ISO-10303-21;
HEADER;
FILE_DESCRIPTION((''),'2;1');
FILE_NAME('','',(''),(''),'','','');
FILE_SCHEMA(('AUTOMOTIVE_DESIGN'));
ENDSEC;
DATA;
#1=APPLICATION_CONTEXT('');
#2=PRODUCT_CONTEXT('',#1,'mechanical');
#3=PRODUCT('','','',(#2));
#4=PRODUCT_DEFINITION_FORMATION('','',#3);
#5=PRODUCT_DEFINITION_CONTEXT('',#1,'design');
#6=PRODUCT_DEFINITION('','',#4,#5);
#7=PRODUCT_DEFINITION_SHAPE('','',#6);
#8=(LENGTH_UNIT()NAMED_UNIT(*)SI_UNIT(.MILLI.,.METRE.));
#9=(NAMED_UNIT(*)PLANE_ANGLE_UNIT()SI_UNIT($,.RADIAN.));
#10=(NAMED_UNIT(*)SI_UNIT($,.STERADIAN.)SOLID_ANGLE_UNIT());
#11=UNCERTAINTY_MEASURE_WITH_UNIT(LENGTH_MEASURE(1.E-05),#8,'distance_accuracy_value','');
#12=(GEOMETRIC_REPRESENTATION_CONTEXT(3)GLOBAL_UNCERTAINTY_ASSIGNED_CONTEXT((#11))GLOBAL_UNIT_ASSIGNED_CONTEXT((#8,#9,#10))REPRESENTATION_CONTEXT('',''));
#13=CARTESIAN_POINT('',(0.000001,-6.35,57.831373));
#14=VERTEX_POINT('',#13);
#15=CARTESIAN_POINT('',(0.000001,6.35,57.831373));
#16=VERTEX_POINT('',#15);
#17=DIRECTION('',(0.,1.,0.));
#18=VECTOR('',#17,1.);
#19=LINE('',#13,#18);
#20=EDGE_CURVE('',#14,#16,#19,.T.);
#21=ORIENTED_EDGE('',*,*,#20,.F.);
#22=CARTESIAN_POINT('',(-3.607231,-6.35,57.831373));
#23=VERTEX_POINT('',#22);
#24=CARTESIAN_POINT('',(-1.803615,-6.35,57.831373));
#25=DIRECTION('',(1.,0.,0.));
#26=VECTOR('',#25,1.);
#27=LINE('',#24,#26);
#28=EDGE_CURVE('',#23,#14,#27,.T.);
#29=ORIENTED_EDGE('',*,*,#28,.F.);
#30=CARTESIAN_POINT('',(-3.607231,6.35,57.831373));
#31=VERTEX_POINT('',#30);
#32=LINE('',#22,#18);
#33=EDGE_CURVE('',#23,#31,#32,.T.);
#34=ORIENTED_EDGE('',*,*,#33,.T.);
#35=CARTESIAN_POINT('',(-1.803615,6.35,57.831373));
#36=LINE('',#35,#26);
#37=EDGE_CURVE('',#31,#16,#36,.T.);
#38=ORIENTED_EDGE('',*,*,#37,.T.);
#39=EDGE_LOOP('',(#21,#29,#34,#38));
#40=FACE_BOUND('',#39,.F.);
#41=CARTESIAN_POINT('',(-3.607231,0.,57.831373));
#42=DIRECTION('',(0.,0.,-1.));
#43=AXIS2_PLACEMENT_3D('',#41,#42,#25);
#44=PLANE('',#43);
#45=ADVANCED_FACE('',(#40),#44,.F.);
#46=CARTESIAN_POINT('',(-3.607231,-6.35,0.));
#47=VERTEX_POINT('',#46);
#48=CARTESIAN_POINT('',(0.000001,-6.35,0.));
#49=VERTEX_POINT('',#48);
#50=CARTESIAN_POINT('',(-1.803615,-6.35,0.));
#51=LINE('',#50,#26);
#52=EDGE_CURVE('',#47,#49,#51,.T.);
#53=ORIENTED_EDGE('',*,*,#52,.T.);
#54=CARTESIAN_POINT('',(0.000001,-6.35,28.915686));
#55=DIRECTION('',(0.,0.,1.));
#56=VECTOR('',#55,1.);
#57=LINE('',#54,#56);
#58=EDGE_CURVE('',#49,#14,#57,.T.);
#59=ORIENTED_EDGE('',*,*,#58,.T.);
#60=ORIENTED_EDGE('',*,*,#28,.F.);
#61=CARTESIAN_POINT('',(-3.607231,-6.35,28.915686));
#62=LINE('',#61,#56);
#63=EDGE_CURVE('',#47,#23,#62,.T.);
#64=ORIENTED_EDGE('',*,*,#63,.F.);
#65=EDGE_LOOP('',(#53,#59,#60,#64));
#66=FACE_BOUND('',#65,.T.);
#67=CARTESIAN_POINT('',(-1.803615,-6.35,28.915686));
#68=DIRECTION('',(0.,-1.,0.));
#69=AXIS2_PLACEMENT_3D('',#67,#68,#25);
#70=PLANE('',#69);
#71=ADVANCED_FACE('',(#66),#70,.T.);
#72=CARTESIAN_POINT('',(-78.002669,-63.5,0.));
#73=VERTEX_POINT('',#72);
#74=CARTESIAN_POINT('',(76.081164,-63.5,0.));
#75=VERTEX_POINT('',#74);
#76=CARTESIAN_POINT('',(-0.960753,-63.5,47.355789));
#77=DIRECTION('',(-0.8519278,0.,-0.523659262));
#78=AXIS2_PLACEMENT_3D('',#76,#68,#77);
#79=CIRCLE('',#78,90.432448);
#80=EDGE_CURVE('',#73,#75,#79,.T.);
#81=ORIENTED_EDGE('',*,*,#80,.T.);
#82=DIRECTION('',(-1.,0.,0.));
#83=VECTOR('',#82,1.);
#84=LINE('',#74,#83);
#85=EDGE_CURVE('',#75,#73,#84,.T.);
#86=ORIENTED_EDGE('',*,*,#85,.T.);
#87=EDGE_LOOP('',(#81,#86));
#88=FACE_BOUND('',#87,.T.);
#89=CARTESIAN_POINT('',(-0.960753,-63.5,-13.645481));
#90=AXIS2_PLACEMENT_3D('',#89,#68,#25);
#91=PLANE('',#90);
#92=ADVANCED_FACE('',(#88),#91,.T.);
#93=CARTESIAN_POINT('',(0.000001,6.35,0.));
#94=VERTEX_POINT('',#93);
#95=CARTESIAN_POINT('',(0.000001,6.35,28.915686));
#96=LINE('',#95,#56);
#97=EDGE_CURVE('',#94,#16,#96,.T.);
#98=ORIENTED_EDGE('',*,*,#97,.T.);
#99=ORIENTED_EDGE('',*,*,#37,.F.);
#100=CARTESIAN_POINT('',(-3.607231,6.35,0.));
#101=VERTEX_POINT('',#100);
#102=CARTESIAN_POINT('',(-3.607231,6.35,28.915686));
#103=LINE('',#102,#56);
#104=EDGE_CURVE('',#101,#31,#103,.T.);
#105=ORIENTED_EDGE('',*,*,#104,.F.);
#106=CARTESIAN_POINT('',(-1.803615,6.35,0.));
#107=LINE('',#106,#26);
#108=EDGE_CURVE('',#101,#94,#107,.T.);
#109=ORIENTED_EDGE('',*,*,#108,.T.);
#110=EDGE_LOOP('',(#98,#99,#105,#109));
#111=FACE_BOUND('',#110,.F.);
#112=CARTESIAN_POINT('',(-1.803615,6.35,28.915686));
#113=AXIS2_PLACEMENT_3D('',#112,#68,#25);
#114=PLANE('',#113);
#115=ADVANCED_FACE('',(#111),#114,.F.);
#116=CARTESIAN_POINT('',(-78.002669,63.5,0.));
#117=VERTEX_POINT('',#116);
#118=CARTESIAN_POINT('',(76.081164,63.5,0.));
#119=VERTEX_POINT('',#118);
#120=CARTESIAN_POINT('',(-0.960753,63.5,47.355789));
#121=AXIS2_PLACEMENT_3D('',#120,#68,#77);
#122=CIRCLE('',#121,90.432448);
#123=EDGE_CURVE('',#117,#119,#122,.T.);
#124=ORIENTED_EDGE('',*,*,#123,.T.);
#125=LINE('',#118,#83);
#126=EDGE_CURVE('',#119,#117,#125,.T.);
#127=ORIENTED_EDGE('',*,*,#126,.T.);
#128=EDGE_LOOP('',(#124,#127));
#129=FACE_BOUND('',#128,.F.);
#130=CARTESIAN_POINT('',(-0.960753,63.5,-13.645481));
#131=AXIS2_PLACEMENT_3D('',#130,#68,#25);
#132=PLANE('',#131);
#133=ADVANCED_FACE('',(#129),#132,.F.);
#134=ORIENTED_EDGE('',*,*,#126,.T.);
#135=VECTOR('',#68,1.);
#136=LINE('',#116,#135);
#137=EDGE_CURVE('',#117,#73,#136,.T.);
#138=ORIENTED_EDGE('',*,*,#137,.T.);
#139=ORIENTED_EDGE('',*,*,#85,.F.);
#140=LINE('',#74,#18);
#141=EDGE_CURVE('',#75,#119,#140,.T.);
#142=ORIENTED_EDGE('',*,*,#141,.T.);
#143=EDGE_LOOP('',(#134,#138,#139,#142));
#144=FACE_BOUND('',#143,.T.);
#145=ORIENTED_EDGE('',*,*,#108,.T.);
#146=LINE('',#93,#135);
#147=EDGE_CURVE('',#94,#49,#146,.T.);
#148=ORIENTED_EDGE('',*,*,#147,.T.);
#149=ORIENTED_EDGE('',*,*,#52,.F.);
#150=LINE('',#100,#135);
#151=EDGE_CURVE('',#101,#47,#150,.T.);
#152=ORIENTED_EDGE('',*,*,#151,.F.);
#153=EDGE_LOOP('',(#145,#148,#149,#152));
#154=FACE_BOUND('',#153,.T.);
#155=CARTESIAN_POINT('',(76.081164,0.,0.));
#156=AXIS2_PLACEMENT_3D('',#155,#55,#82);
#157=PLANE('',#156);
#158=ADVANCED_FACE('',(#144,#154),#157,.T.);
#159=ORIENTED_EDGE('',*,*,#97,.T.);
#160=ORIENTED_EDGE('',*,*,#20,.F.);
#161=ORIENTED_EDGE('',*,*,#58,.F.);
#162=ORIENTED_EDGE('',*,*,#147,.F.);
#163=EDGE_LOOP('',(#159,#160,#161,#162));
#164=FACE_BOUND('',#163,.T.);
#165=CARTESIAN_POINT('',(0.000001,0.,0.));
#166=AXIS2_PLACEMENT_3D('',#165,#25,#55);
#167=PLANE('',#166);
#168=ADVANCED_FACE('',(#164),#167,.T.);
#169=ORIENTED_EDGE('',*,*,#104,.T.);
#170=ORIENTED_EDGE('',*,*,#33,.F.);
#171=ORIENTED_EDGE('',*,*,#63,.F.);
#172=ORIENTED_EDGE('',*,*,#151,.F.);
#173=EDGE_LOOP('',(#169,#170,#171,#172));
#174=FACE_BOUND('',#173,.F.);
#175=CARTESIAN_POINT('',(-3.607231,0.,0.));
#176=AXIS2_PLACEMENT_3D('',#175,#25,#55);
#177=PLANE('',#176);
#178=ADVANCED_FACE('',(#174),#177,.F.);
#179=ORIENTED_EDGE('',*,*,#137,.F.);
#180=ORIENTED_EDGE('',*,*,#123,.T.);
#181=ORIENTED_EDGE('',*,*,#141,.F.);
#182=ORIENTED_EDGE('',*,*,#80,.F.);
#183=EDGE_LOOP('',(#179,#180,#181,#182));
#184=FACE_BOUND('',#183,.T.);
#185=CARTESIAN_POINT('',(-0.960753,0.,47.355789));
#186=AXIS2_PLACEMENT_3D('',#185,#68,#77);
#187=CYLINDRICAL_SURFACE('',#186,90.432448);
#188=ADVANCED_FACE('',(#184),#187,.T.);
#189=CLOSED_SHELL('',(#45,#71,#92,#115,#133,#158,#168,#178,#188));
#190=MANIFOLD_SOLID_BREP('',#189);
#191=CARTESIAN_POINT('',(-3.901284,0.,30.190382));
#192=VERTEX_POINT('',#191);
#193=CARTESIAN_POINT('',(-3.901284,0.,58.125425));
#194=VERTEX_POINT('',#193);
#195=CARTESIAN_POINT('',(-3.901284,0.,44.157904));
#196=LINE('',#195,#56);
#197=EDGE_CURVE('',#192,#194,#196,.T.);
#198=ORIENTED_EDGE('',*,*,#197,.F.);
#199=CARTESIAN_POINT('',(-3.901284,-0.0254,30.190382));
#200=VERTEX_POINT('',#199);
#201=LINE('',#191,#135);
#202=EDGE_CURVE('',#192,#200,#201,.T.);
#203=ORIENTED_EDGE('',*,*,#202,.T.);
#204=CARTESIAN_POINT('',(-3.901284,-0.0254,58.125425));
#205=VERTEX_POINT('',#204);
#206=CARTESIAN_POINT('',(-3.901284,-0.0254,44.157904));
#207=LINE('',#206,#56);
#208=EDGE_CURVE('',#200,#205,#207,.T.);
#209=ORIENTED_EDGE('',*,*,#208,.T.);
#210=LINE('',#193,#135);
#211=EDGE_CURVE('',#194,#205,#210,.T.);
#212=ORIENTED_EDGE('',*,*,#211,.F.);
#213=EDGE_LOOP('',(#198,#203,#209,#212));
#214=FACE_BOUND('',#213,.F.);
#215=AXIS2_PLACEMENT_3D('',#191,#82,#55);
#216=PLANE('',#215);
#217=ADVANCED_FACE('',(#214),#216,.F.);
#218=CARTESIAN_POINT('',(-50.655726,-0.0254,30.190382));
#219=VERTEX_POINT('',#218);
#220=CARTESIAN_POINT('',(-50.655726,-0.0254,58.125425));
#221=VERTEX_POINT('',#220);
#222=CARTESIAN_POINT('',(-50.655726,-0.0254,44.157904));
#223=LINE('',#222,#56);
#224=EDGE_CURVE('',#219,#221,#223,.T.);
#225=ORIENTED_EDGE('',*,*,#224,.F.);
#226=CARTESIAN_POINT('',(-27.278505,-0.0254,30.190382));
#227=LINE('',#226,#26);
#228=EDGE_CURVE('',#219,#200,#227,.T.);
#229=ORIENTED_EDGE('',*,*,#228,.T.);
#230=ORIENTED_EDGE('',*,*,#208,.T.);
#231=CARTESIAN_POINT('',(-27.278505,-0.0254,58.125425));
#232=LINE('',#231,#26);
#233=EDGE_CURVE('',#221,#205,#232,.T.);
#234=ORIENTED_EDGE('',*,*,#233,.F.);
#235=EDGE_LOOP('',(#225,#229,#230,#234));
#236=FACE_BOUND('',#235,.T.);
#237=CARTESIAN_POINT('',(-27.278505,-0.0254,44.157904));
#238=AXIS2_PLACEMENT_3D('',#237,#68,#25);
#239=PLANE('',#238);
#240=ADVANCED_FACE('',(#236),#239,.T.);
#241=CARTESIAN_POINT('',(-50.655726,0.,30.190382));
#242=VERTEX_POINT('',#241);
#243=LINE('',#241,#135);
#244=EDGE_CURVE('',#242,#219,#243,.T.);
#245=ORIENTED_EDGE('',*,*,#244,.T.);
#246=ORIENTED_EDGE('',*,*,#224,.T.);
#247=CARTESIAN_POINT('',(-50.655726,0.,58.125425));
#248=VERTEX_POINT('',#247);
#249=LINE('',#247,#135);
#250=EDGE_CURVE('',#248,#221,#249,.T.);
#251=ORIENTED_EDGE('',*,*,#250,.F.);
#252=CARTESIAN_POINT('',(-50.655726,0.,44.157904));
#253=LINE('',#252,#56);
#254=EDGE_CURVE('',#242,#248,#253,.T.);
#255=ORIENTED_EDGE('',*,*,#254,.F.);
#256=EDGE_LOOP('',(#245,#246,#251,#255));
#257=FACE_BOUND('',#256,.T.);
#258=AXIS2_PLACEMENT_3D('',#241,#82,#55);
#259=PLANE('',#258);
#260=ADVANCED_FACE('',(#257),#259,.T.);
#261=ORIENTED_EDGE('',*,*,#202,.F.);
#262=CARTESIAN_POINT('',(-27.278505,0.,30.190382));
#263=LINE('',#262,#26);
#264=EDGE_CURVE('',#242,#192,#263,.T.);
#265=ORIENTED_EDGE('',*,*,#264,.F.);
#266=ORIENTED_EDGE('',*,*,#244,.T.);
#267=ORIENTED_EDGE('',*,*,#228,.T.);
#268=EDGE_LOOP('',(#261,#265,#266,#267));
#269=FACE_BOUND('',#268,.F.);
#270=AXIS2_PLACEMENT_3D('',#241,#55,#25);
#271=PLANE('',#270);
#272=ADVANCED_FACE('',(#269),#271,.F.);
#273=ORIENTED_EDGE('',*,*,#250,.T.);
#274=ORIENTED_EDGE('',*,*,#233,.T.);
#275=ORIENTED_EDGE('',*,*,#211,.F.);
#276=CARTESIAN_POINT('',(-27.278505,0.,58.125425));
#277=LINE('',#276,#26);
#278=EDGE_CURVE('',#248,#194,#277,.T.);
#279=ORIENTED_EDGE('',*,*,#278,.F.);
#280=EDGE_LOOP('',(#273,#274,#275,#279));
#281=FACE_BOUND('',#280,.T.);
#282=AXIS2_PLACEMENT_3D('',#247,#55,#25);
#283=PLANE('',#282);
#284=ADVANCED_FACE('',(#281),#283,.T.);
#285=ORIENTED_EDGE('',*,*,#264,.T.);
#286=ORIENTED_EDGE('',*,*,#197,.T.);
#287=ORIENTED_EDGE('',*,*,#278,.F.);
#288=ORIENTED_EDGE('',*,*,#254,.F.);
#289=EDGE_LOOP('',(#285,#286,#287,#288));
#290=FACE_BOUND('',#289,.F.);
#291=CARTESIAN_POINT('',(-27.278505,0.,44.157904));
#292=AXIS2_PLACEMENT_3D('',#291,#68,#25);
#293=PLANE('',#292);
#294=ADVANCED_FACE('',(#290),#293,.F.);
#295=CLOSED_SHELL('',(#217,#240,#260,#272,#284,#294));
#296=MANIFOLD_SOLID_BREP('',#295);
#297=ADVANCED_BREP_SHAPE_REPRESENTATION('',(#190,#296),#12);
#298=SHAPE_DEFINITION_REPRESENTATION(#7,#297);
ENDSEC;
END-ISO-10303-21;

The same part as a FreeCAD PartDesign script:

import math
import FreeCAD as App
import Part
import Sketcher
from FreeCAD import Vector
Q = App.Units.Quantity

doc = App.newDocument("Part")
body = doc.addObject("PartDesign::Body", "Body")

sketch1 = body.newObject("Sketcher::SketchObject", "Sketch")
sketch1.AttachmentSupport = (doc.getObject("XZ_Plane"), [""])
sketch1.MapMode = "FlatFace"
sketch1.addGeometry(Part.LineSegment(Vector(76, 0, 0), Vector(-78, 0, 0)), False)
sketch1.addGeometry(Part.ArcOfCircle(Part.Circle(Vector(-1, 47, 0), Vector(0, 0, 1), 90), math.radians(-148), math.radians(-32)), False)
sketch1.addConstraint(Sketcher.Constraint("Coincident", 0, 1, 1, 2))
sketch1.addConstraint(Sketcher.Constraint("Coincident", 1, 1, 0, 2))
sketch1.addConstraint(Sketcher.Constraint("Horizontal", 0))
sketch1.addConstraint(Sketcher.Constraint("PointOnObject", 0, 1, -1))
sketch1.addConstraint(Sketcher.Constraint("Radius", 1, Q("90.432448 mm")))
sketch1.addConstraint(Sketcher.Constraint("DistanceX", 0, 2, 0, 1, Q("154.083833 mm")))
sketch1.addConstraint(Sketcher.Constraint("DistanceX", 1, 1, -1, 1, Q("78.002669 mm")))
pad1 = body.newObject("PartDesign::Pad", "Pad")
pad1.Profile = sketch1
pad1.Length = Q("5 in")
pad1.Midplane = True

sketch2 = body.newObject("Sketcher::SketchObject", "Sketch001")
sketch2.AttachmentSupport = (doc.getObject("XZ_Plane"), [""])
sketch2.MapMode = "FlatFace"
sketch2.addGeometry(Part.LineSegment(Vector(-3.6, 57.8, 0), Vector(-3.6, 0, 0)), False)
sketch2.addGeometry(Part.LineSegment(Vector(-3.6, 0, 0), Vector(0, 0, 0)), False)
sketch2.addGeometry(Part.LineSegment(Vector(0, 0, 0), Vector(0, 57.8, 0)), False)
sketch2.addGeometry(Part.LineSegment(Vector(0, 57.8, 0), Vector(-3.6, 57.8, 0)), False)
sketch2.addConstraint(Sketcher.Constraint("Coincident", 0, 2, 1, 1))
sketch2.addConstraint(Sketcher.Constraint("Coincident", 1, 2, 2, 1))
sketch2.addConstraint(Sketcher.Constraint("Coincident", 2, 2, 3, 1))
sketch2.addConstraint(Sketcher.Constraint("Coincident", 3, 2, 0, 1))
sketch2.addConstraint(Sketcher.Constraint("Vertical", 0))
sketch2.addConstraint(Sketcher.Constraint("Horizontal", 1))
sketch2.addConstraint(Sketcher.Constraint("Vertical", 2))
sketch2.addConstraint(Sketcher.Constraint("Horizontal", 3))
sketch2.addConstraint(Sketcher.Constraint("Coincident", 1, 2, -1, 1))
sketch2.addConstraint(Sketcher.Constraint("DistanceX", 1, 1, 1, 2, Q("3.607231 mm")))
sketch2.addConstraint(Sketcher.Constraint("DistanceY", 0, 2, 0, 1, Q("57.831373 mm")))
pad2 = body.newObject("PartDesign::Pad", "Pad001")
pad2.Profile = sketch2
pad2.Length = Q("0.5 in")
pad2.Midplane = True
body2 = doc.addObject("PartDesign::Body", "Body001")

sketch3 = body2.newObject("Sketcher::SketchObject", "Sketch002")
sketch3.AttachmentSupport = (doc.getObject("XZ_Plane001"), [""])
sketch3.MapMode = "FlatFace"
sketch3.addGeometry(Part.LineSegment(Vector(-51, 58, 0), Vector(-51, 30, 0)), False)
sketch3.addGeometry(Part.LineSegment(Vector(-51, 30, 0), Vector(-4, 30, 0)), False)
sketch3.addGeometry(Part.LineSegment(Vector(-4, 30, 0), Vector(-4, 58, 0)), False)
sketch3.addGeometry(Part.LineSegment(Vector(-4, 58, 0), Vector(-51, 58, 0)), False)
sketch3.addConstraint(Sketcher.Constraint("Coincident", 0, 2, 1, 1))
sketch3.addConstraint(Sketcher.Constraint("Coincident", 1, 2, 2, 1))
sketch3.addConstraint(Sketcher.Constraint("Coincident", 2, 2, 3, 1))
sketch3.addConstraint(Sketcher.Constraint("Coincident", 3, 2, 0, 1))
sketch3.addConstraint(Sketcher.Constraint("Vertical", 0))
sketch3.addConstraint(Sketcher.Constraint("Horizontal", 1))
sketch3.addConstraint(Sketcher.Constraint("Vertical", 2))
sketch3.addConstraint(Sketcher.Constraint("Horizontal", 3))
sketch3.addConstraint(Sketcher.Constraint("DistanceX", 1, 1, 1, 2, Q("46.754442 mm")))
sketch3.addConstraint(Sketcher.Constraint("DistanceY", 0, 2, 0, 1, Q("27.935043 mm")))
sketch3.addConstraint(Sketcher.Constraint("DistanceX", 0, 2, -1, 1, Q("50.655726 mm")))
sketch3.addConstraint(Sketcher.Constraint("DistanceY", -1, 1, 0, 2, Q("30.190382 mm")))
pad3 = body2.newObject("PartDesign::Pad", "Pad002")
pad3.Profile = sketch3
pad3.Length = Q("0.001 in")

doc.recompute()
